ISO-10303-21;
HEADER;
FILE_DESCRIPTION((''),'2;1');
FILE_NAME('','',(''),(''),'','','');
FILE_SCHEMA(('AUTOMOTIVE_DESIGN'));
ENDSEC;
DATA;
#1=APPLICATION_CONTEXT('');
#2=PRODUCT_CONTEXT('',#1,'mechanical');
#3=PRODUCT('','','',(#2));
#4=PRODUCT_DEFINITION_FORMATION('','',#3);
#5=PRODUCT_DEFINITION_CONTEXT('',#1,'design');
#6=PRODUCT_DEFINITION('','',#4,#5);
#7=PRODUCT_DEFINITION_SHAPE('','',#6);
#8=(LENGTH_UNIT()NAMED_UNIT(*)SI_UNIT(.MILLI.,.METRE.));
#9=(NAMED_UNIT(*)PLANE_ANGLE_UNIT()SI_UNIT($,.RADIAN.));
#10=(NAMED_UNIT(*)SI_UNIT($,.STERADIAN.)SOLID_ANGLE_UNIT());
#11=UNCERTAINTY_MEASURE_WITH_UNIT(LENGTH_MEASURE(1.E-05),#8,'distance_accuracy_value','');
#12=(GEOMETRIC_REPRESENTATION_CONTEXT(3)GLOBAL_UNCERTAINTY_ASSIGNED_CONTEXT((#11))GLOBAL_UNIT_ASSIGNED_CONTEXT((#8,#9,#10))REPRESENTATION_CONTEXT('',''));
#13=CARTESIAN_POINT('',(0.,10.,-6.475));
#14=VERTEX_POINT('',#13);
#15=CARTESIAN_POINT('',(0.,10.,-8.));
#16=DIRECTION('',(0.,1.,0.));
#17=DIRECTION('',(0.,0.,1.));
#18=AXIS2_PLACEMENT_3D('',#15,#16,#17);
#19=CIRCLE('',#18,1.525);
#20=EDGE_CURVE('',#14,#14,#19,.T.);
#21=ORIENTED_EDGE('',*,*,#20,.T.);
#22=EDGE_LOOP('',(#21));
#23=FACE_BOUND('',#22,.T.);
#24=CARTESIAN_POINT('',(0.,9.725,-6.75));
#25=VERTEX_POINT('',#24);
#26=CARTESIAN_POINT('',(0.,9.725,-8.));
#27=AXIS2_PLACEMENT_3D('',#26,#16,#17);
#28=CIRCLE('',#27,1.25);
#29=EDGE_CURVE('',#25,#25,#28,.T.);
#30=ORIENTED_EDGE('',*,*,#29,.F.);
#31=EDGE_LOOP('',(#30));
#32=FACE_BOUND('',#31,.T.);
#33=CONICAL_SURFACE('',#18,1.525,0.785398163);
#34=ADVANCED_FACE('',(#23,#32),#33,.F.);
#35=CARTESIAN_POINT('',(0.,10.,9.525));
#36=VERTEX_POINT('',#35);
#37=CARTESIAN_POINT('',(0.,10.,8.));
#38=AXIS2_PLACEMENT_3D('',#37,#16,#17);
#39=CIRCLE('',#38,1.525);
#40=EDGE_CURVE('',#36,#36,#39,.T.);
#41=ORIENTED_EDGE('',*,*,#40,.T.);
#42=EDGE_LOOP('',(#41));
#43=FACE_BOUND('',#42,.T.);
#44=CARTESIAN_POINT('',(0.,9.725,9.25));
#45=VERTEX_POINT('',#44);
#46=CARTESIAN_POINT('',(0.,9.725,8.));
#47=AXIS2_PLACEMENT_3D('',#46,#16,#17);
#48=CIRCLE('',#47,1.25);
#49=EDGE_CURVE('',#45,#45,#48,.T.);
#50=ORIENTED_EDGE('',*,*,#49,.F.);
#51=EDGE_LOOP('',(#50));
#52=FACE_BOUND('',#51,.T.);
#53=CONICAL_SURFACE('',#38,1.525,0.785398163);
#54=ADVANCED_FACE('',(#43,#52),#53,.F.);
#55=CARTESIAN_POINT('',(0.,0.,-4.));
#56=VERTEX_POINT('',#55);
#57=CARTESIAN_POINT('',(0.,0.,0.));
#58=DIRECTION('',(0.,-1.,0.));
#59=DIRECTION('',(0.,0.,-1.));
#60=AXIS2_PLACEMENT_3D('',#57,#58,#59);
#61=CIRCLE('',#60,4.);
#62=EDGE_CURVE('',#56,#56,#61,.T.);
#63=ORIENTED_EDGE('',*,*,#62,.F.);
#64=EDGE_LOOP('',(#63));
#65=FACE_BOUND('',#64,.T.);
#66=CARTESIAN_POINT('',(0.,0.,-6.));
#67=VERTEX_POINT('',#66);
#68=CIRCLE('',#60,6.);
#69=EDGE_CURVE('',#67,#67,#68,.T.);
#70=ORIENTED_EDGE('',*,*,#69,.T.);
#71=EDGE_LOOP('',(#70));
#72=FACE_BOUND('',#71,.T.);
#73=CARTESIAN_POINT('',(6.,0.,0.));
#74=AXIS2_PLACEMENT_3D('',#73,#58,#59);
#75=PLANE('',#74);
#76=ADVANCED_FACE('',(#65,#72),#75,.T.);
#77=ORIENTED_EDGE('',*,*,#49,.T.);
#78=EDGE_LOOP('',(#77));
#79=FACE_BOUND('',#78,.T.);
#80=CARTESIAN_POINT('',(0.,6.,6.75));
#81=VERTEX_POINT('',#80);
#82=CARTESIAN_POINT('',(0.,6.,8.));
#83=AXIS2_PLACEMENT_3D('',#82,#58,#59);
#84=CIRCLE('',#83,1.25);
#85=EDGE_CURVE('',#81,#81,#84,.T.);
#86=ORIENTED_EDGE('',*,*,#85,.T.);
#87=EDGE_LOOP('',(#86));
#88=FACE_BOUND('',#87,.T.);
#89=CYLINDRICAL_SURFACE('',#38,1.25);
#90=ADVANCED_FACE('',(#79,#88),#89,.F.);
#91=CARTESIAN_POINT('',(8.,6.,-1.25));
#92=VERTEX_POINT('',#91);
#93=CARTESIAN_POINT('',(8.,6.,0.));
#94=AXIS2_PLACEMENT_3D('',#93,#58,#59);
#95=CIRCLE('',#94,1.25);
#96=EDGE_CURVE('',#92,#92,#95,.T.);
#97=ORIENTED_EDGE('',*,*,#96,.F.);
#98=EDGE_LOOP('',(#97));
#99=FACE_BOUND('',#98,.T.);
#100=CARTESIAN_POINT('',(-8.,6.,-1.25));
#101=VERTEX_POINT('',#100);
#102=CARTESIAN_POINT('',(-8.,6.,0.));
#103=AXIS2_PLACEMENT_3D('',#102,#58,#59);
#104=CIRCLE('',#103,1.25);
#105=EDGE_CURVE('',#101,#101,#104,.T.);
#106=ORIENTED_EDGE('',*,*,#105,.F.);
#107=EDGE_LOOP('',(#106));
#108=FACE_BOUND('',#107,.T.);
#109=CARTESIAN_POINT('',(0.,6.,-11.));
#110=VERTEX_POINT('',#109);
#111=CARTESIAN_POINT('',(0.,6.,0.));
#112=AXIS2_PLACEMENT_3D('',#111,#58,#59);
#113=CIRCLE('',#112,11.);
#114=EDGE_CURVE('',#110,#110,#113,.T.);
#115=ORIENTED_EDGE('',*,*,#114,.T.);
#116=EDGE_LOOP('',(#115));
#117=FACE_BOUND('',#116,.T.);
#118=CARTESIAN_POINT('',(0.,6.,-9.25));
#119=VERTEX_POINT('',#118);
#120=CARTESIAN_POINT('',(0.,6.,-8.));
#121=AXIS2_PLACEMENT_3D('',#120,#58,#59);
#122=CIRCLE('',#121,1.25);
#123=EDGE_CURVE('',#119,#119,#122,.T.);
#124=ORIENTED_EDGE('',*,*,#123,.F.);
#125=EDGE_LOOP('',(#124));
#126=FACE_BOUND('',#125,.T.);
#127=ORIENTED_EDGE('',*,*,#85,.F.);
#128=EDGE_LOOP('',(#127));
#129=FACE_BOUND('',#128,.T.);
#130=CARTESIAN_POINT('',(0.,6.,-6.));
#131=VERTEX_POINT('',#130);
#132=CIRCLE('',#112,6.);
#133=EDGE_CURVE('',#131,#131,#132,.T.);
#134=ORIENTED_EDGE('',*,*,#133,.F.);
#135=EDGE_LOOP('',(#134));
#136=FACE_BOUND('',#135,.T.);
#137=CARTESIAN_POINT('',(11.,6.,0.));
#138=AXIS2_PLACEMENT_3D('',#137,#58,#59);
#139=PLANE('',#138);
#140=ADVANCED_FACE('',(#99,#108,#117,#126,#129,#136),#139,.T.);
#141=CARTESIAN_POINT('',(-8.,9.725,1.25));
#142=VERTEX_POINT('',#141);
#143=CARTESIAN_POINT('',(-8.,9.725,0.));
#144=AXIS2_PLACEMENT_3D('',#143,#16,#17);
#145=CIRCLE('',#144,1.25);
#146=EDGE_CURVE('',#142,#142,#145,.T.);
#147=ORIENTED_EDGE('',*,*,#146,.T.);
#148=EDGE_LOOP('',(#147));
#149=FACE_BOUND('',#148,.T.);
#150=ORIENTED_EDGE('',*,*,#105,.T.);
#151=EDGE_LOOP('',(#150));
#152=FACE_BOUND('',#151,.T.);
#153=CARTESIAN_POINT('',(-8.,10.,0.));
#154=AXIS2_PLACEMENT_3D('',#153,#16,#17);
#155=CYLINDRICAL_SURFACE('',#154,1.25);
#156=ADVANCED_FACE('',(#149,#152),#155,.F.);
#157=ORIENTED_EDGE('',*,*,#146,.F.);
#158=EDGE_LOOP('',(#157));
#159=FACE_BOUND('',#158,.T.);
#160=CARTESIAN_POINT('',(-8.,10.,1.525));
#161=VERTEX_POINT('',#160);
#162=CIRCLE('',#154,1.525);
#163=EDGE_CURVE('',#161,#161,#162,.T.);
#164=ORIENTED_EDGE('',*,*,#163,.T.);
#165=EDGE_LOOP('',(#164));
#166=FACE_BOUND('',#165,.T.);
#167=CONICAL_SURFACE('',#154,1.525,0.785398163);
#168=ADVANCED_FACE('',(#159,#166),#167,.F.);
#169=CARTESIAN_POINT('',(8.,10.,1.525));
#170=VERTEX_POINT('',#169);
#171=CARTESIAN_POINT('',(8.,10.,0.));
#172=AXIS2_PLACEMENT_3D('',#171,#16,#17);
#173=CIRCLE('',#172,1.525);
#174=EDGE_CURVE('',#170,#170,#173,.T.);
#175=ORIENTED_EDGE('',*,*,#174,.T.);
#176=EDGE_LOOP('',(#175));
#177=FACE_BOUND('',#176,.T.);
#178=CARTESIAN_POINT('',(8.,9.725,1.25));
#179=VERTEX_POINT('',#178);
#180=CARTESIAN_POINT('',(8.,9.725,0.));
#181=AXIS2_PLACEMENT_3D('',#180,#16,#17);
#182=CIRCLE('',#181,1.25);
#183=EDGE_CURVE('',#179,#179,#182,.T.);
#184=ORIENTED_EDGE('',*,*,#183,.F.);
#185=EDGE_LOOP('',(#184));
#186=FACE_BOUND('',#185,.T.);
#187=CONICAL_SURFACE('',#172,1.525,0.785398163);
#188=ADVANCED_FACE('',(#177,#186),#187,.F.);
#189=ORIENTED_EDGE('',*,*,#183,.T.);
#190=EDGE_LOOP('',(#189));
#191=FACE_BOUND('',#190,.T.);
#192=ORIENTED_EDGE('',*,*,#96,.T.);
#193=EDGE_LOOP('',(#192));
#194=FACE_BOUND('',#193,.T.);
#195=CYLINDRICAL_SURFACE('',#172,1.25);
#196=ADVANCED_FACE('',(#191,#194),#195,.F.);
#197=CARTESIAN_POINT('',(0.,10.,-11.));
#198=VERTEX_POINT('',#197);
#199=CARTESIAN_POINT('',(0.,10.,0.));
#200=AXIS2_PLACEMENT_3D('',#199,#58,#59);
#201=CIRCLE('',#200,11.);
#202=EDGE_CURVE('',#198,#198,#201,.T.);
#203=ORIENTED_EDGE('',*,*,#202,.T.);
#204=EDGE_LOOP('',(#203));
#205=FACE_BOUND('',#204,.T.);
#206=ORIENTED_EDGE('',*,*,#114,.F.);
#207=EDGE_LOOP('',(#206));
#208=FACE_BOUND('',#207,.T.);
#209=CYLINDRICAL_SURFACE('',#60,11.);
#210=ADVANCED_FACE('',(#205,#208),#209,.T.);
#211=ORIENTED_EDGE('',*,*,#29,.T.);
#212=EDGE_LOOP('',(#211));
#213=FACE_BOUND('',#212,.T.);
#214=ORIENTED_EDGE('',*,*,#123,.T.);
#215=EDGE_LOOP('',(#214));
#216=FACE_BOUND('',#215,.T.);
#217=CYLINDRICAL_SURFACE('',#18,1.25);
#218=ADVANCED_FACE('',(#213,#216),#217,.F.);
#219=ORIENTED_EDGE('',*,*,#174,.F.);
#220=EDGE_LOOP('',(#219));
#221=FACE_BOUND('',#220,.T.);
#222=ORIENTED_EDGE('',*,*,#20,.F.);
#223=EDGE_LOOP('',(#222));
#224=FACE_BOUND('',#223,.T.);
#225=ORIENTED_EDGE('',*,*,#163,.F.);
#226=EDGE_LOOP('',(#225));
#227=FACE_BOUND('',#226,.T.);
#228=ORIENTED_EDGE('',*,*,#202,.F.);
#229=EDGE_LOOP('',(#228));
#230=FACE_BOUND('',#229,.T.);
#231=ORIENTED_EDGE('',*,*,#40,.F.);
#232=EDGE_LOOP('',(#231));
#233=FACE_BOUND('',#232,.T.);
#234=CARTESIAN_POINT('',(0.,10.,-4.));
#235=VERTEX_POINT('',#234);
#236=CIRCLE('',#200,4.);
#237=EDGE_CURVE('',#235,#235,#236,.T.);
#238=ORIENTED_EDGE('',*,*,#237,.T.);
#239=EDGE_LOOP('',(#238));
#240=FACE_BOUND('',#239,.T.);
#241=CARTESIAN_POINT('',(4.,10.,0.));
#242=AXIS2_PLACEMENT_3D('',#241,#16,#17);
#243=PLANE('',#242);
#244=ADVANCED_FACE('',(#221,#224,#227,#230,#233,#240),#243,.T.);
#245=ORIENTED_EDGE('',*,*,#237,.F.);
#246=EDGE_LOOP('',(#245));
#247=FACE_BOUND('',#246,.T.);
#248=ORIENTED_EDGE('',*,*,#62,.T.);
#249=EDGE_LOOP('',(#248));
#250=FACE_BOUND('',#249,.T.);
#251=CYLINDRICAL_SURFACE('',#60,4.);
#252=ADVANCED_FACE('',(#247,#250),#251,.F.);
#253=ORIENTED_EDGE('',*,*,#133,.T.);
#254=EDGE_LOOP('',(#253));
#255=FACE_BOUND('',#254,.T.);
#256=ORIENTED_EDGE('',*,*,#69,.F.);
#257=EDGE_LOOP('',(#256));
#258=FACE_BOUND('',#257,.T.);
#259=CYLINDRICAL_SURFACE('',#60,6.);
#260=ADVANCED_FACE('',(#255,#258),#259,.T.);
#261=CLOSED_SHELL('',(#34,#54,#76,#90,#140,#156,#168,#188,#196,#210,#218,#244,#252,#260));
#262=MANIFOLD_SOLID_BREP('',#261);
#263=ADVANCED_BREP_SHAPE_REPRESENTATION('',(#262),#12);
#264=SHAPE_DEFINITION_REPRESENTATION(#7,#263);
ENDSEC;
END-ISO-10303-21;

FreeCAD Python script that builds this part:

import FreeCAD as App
import Part
import Sketcher
from FreeCAD import Vector

doc = App.newDocument("Part")
body = doc.addObject("PartDesign::Body", "Body")

# Sketch on XY plane
sketch1 = body.newObject("Sketcher::SketchObject", "Sketch")
sketch1.AttachmentSupport = (doc.getObject("XY_Plane"), [""])
sketch1.MapMode = "FlatFace"
sketch1.addGeometry([
    Part.LineSegment(Vector(4, 10, 0), Vector(4, 0, 0)),  # 0
    Part.LineSegment(Vector(4, 0, 0), Vector(6, 0, 0)),  # 1
    Part.LineSegment(Vector(6, 0, 0), Vector(6, 6, 0)),  # 2
    Part.LineSegment(Vector(6, 6, 0), Vector(11, 6, 0)),  # 3
    Part.LineSegment(Vector(11, 6, 0), Vector(11, 10, 0)),  # 4
    Part.LineSegment(Vector(11, 10, 0), Vector(4, 10, 0)),  # 5
], False)
sketch1.addConstraint([
    Sketcher.Constraint("Coincident", 0, 2, 1, 1),
    Sketcher.Constraint("Coincident", 1, 2, 2, 1),
    Sketcher.Constraint("Coincident", 2, 2, 3, 1),
    Sketcher.Constraint("Coincident", 3, 2, 4, 1),
    Sketcher.Constraint("Coincident", 4, 2, 5, 1),
    Sketcher.Constraint("Coincident", 5, 2, 0, 1),
    Sketcher.Constraint("Vertical", 0),
    Sketcher.Constraint("Horizontal", 1),
    Sketcher.Constraint("Vertical", 2),
    Sketcher.Constraint("Horizontal", 3),
    Sketcher.Constraint("Vertical", 4),
    Sketcher.Constraint("Horizontal", 5),
    Sketcher.Constraint("PointOnObject", 0, 2, -1),
    Sketcher.Constraint("DistanceX", 1, 1, 1, 2, 2.0),
    Sketcher.Constraint("DistanceX", 3, 1, 3, 2, 5.0),
    Sketcher.Constraint("DistanceY", 0, 2, 0, 1, 10.0),
    Sketcher.Constraint("DistanceY", 2, 1, 2, 2, 6.0),
    Sketcher.Constraint("DistanceX", -1, 1, 0, 2, 4.0),
])
revolution = body.newObject("PartDesign::Revolution", "Revolution")
revolution.Profile = sketch1
revolution.ReferenceAxis = (sketch1, ["V_Axis"])
revolution.Angle = 360

# Sketch on XZ plane
sketch2 = body.newObject("Sketcher::SketchObject", "Sketch001")
sketch2.AttachmentSupport = (doc.getObject("XZ_Plane"), [""])
sketch2.MapMode = "FlatFace"
sketch2.AttachmentOffset = App.Placement(Vector(0, 0, -10), App.Rotation())
sketch2.addGeometry([
    Part.Circle(Vector(0, -8, 0), Vector(0, 0, 1), 1.2),  # 0
    Part.Circle(Vector(8, 0, 0), Vector(0, 0, 1), 1.2),  # 1
    Part.Circle(Vector(0, 8, 0), Vector(0, 0, 1), 1.2),  # 2
    Part.Circle(Vector(-8, 0, 0), Vector(0, 0, 1), 1.2),  # 3
    Part.Circle(Vector(0, 0, 0), Vector(0, 0, 1), 1.2),  # 4
], False)
sketch2.addConstraint([
    Sketcher.Constraint("Coincident", 4, 3, -1, 1),
    Sketcher.Constraint("Equal", 0, 1),
    Sketcher.Constraint("Equal", 1, 2),
    Sketcher.Constraint("Equal", 2, 3),
    Sketcher.Constraint("Equal", 3, 4),
    Sketcher.Constraint("Symmetric", 0, 3, 2, 3, -1, 1),
    Sketcher.Constraint("Symmetric", 1, 3, 3, 3, -1, 1),
    Sketcher.Constraint("PointOnObject", 0, 3, -2),
    Sketcher.Constraint("PointOnObject", 1, 3, -1),
    Sketcher.Constraint("Diameter", 0, 2.5),
    Sketcher.Constraint("DistanceY", 0, 3, -1, 1, 8.0),
    Sketcher.Constraint("DistanceX", -1, 1, 1, 3, 8.0),
])
doc.recompute()
hole = body.newObject("PartDesign::Hole", "Hole")
hole.Profile = sketch2
hole.ThreadType = "None"
hole.Diameter = 2.5
hole.DepthType = "ThroughAll"
hole.HoleCutType = "Countersink"
hole.HoleCutDiameter = 3.05
hole.HoleCutCountersinkAngle = 90
hole.Reversed = True

doc.recompute()
